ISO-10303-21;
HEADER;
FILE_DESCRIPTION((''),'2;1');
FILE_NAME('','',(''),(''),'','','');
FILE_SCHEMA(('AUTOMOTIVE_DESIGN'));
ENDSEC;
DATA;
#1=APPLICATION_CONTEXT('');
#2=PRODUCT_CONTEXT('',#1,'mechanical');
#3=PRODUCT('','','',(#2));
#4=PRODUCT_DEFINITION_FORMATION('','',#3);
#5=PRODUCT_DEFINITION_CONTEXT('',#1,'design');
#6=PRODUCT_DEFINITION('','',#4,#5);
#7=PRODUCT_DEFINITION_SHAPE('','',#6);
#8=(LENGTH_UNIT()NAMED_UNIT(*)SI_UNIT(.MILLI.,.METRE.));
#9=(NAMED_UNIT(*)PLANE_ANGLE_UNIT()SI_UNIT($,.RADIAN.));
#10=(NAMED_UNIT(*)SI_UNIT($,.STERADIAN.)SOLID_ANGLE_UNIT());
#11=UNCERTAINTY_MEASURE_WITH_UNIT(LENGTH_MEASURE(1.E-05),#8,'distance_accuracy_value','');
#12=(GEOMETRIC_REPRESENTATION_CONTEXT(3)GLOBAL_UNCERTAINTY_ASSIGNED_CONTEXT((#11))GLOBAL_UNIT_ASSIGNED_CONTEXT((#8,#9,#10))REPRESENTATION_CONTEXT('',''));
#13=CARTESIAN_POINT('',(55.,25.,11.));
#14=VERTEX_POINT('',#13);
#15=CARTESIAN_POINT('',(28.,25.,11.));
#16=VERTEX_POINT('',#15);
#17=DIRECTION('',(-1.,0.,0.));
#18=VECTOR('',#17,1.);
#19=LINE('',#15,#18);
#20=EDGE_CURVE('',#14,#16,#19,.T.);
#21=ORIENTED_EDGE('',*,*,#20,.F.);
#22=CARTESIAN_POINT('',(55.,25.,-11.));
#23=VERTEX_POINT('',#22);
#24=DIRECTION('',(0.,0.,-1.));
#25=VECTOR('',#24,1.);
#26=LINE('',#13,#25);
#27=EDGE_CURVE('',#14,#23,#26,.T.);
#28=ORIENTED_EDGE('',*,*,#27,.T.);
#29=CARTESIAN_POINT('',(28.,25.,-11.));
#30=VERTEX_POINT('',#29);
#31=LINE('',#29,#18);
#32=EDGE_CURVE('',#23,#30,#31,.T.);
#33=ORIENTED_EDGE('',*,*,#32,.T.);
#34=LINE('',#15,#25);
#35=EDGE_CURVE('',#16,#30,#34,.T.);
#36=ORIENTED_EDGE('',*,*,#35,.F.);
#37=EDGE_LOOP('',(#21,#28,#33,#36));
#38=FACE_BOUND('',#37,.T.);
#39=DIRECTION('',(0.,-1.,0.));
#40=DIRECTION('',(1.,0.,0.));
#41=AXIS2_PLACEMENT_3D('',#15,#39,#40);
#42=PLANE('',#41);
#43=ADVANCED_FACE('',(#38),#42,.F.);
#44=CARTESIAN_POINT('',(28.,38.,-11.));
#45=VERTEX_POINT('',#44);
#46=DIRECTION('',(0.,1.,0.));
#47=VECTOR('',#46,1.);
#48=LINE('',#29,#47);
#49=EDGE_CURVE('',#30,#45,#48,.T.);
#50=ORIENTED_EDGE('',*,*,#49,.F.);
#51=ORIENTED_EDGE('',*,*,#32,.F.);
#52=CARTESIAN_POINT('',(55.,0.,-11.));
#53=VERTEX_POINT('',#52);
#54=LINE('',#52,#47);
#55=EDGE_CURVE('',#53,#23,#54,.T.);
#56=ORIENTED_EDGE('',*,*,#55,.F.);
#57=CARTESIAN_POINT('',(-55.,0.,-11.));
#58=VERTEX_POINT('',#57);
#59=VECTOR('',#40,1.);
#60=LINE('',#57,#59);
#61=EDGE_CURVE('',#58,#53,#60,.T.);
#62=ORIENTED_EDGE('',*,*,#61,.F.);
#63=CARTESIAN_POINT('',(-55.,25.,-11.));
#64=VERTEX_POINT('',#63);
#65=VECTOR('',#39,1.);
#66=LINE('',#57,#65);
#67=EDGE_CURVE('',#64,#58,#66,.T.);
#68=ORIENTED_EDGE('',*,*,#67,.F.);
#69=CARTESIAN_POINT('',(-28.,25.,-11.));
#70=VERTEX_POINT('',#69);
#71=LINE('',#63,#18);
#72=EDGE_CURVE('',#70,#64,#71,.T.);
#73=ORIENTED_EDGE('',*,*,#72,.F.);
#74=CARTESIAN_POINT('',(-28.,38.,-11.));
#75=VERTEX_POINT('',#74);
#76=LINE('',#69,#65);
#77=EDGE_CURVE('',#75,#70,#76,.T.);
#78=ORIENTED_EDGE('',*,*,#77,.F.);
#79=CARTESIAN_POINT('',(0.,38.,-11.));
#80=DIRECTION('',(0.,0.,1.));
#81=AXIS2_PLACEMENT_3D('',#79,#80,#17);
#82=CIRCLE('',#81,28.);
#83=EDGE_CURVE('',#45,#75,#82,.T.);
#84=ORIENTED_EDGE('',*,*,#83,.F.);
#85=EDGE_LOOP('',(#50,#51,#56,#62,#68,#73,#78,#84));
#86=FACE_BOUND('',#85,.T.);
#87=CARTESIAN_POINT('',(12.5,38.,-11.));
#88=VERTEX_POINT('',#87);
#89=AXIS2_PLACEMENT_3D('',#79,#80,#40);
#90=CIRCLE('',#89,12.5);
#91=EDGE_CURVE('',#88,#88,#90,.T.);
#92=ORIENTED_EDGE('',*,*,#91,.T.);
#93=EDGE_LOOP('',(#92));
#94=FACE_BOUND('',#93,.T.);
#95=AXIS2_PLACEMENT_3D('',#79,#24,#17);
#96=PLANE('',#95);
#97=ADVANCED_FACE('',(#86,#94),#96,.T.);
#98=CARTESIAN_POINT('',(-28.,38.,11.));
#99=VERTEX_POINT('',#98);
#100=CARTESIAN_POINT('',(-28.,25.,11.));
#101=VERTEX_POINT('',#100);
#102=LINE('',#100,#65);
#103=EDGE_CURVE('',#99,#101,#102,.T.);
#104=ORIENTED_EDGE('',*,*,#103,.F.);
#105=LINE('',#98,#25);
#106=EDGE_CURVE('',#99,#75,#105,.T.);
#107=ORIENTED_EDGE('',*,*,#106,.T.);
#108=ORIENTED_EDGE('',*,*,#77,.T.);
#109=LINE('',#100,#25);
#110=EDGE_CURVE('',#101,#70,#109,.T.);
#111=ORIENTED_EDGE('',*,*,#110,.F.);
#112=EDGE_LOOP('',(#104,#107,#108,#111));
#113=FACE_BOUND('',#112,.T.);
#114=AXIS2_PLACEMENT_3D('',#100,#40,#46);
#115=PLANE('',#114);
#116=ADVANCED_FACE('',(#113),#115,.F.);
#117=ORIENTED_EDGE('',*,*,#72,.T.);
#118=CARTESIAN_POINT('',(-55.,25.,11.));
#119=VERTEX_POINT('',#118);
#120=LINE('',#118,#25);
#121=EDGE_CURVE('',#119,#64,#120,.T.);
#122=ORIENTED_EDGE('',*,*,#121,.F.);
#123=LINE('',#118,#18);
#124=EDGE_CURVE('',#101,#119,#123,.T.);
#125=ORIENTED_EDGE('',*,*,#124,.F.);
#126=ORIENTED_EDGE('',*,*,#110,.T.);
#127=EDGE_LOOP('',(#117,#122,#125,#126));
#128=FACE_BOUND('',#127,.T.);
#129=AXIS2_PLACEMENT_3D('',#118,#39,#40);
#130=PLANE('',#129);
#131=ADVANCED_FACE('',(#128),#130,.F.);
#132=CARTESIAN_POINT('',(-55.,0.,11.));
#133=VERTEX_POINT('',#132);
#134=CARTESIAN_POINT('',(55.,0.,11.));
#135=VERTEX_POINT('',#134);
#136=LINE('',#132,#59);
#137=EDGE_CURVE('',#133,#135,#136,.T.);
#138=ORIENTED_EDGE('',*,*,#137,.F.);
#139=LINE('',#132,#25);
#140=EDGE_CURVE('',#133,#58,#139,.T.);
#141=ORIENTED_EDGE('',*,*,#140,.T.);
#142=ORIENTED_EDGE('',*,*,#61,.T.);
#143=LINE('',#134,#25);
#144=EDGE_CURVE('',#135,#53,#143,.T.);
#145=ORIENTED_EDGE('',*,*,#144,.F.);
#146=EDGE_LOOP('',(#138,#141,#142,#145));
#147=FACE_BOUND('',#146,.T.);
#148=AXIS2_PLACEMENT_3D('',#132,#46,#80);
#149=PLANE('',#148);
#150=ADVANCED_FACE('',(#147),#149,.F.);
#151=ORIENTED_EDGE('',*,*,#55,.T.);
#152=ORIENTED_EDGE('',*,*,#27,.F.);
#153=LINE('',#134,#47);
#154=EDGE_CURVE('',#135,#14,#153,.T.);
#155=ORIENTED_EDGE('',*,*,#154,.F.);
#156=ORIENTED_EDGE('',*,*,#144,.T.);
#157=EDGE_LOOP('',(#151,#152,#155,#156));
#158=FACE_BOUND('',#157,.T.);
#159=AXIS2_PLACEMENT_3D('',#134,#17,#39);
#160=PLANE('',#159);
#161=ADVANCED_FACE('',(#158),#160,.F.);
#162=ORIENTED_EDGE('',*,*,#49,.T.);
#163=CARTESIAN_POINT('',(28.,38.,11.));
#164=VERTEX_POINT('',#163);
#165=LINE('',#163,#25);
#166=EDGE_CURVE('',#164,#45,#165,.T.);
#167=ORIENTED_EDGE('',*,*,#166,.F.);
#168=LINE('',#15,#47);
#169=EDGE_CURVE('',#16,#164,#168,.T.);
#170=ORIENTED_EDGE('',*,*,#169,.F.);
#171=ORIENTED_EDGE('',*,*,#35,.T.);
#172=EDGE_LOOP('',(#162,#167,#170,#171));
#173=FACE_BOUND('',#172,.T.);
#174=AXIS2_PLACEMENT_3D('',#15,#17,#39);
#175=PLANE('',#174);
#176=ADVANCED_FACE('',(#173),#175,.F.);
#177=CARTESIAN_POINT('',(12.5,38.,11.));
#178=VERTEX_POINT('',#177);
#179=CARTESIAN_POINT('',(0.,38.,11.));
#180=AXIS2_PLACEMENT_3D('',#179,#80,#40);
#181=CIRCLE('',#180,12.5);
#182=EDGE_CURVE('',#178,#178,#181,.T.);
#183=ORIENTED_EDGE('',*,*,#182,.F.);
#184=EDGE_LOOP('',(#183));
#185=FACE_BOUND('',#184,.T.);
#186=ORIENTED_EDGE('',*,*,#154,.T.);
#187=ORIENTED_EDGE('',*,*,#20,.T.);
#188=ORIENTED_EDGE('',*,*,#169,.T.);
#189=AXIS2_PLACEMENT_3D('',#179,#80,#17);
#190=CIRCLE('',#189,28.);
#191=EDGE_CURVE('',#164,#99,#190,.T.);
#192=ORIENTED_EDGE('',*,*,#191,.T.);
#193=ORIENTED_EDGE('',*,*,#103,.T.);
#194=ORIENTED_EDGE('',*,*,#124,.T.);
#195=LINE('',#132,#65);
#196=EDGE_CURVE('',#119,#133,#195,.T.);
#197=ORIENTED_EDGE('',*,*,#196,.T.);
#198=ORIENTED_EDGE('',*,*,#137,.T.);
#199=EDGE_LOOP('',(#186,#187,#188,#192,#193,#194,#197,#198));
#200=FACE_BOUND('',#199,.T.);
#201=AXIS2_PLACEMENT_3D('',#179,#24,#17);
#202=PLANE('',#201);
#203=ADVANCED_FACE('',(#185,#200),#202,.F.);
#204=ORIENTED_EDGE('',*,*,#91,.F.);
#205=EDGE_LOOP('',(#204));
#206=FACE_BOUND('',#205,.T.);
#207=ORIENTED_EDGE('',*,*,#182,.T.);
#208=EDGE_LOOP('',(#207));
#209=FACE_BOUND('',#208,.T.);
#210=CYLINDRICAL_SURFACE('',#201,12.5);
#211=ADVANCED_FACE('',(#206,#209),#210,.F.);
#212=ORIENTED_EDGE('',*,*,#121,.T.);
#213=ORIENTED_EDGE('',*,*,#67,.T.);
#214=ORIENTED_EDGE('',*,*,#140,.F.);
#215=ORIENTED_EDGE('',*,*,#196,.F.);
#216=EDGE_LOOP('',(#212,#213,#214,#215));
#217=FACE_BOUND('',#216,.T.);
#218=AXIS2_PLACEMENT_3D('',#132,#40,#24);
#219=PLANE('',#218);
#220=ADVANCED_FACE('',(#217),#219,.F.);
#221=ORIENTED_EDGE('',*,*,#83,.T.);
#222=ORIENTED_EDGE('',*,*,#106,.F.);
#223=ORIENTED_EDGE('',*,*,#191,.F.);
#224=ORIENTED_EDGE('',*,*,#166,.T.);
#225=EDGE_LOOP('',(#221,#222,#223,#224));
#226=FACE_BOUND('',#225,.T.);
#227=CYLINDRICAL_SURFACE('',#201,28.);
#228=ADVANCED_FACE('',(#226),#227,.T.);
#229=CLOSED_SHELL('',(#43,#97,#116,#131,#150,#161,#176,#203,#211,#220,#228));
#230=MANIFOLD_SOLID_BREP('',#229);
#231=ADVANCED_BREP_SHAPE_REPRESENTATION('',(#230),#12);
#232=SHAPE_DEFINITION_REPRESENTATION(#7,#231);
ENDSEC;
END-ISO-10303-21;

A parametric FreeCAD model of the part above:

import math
import FreeCAD as App
import Part
import Sketcher

V = App.Vector

doc = App.newDocument("Part")
params = doc.addObject("Spreadsheet::Sheet", "Params")
for row, (alias, value) in enumerate([
    ("sketch1_diameter", "25 mm"),
    ("sketch1_radius", "28 mm"),
    ("sketch1_width", "110 mm"),
    ("sketch1_height", "25 mm"),
    ("sketch1_height2", "13 mm"),
    ("pad1_length", "22 mm"),
], start=1):
    params.set(f"A{row}", alias)
    params.set(f"B{row}", "=" + value)
    params.setAlias(f"B{row}", alias)

body = doc.addObject("PartDesign::Body", "Body")

sketch1 = doc.addObject("Sketcher::SketchObject", "Sketch")
body.addObject(sketch1)
sketch1.AttachmentSupport = (doc.XY_Plane, [""])
sketch1.MapMode = "FlatFace"
sketch1.addGeometry(Part.LineSegment(V(-55, 0, 0), V(55, 0, 0)), False)
sketch1.addGeometry(Part.LineSegment(V(55, 0, 0), V(55, 25, 0)), False)
sketch1.addGeometry(Part.LineSegment(V(55, 25, 0), V(28, 25, 0)), False)
sketch1.addGeometry(Part.LineSegment(V(28, 25, 0), V(28, 38, 0)), False)
sketch1.addGeometry(Part.ArcOfCircle(Part.Circle(V(0, 38, 0), V(0, 0, 1), 28), math.radians(0), math.radians(180)), False)
sketch1.addGeometry(Part.LineSegment(V(-28, 38, 0), V(-28, 25, 0)), False)
sketch1.addGeometry(Part.LineSegment(V(-28, 25, 0), V(-55, 25, 0)), False)
sketch1.addGeometry(Part.LineSegment(V(-55, 25, 0), V(-55, 0, 0)), False)
sketch1.addGeometry(Part.Circle(V(0, 38, 0), V(0, 0, 1), 12), False)
sketch1.addConstraint(Sketcher.Constraint("Coincident", 0, 2, 1, 1))
sketch1.addConstraint(Sketcher.Constraint("Coincident", 1, 2, 2, 1))
sketch1.addConstraint(Sketcher.Constraint("Coincident", 2, 2, 3, 1))
sketch1.addConstraint(Sketcher.Constraint("Tangent", 3, 2, 4, 1))
sketch1.addConstraint(Sketcher.Constraint("Tangent", 4, 2, 5, 1))
sketch1.addConstraint(Sketcher.Constraint("Coincident", 5, 2, 6, 1))
sketch1.addConstraint(Sketcher.Constraint("Coincident", 6, 2, 7, 1))
sketch1.addConstraint(Sketcher.Constraint("Coincident", 7, 2, 0, 1))
sketch1.addConstraint(Sketcher.Constraint("Horizontal", 0))
sketch1.addConstraint(Sketcher.Constraint("Vertical", 1))
sketch1.addConstraint(Sketcher.Constraint("Horizontal", 2))
sketch1.addConstraint(Sketcher.Constraint("Vertical", 3))
sketch1.addConstraint(Sketcher.Constraint("Vertical", 5))
sketch1.addConstraint(Sketcher.Constraint("Horizontal", 6))
sketch1.addConstraint(Sketcher.Constraint("Vertical", 7))
sketch1.addConstraint(Sketcher.Constraint("Coincident", 8, 3, 4, 3))
sketch1.addConstraint(Sketcher.Constraint("Symmetric", 0, 2, 7, 2, -1, 1))
sketch1.addConstraint(Sketcher.Constraint("Symmetric", 2, 2, 5, 2, -2))
sketch1.addConstraint(Sketcher.Constraint("Diameter", 8, 25.0))
sketch1.addConstraint(Sketcher.Constraint("Radius", 4, 28.0))
sketch1.addConstraint(Sketcher.Constraint("DistanceX", 0, 1, 0, 2, 110.0))
sketch1.addConstraint(Sketcher.Constraint("DistanceY", 1, 1, 1, 2, 25.0))
sketch1.addConstraint(Sketcher.Constraint("DistanceY", 3, 1, 3, 2, 13.0))
sketch1.setExpression("Constraints[18]", "Params.sketch1_diameter")
sketch1.setExpression("Constraints[19]", "Params.sketch1_radius")
sketch1.setExpression("Constraints[20]", "Params.sketch1_width")
sketch1.setExpression("Constraints[21]", "Params.sketch1_height")
sketch1.setExpression("Constraints[22]", "Params.sketch1_height2")
pad1 = doc.addObject("PartDesign::Pad", "Pad")
body.addObject(pad1)
pad1.Profile = sketch1
pad1.setExpression("Length", "Params.pad1_length")
pad1.Midplane = True

doc.recompute()
